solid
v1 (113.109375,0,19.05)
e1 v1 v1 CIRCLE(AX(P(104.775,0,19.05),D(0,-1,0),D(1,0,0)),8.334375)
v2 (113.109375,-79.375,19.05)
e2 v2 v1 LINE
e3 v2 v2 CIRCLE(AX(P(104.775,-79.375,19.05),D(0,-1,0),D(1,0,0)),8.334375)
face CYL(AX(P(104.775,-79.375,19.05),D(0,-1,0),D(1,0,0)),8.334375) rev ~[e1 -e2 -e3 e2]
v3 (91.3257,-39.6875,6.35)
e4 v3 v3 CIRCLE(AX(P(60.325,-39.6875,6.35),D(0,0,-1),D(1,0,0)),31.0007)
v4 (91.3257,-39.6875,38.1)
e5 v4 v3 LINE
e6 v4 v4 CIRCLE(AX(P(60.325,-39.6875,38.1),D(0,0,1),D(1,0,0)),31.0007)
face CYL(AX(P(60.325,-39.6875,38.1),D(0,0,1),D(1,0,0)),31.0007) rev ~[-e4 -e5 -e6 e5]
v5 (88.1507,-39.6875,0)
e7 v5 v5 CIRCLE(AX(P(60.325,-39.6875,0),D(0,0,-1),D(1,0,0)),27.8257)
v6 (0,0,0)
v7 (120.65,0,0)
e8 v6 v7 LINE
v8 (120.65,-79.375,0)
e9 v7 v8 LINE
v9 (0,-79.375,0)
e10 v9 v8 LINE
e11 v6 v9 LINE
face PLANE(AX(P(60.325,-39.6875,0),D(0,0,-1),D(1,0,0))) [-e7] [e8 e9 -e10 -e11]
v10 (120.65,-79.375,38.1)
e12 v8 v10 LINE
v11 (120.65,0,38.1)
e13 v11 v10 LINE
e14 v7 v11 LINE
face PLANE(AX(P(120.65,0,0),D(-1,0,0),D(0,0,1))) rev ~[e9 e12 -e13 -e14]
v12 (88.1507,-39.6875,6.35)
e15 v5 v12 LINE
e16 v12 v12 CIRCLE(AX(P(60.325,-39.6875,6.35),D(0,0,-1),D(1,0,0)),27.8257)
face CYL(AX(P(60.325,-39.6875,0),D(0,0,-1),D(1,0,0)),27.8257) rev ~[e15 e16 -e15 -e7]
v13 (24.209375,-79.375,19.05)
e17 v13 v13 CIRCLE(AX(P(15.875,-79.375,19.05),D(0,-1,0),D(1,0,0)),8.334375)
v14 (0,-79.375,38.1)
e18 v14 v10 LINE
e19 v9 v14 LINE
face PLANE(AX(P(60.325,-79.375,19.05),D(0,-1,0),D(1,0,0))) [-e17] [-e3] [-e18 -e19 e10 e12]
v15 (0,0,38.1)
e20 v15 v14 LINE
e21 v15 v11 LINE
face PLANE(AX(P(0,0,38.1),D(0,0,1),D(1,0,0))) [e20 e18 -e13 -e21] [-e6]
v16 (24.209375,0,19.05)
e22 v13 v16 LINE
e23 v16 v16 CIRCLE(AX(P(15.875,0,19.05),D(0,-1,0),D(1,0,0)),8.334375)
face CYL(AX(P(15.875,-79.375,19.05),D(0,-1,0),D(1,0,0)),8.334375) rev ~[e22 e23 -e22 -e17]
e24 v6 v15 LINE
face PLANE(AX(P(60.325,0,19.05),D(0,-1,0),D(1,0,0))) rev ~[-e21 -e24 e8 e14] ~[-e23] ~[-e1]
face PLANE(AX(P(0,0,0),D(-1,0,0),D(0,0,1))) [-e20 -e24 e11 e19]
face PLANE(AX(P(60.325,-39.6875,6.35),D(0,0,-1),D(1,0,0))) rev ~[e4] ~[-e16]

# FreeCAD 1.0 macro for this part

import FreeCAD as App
import Part
import Sketcher
from FreeCAD import Vector
Q = App.Units.Quantity

doc = App.newDocument("Part")
body = doc.addObject("PartDesign::Body", "Body")

sketch1 = body.newObject("Sketcher::SketchObject", "Sketch")
sketch1.AttachmentSupport = (doc.getObject("XZ_Plane"), [""])
sketch1.MapMode = "FlatFace"
sketch1.addGeometry(Part.LineSegment(Vector(0, 38, 0), Vector(0, 0, 0)), False)
sketch1.addGeometry(Part.LineSegment(Vector(0, 0, 0), Vector(121, 0, 0)), False)
sketch1.addGeometry(Part.LineSegment(Vector(121, 0, 0), Vector(121, 38, 0)), False)
sketch1.addGeometry(Part.LineSegment(Vector(121, 38, 0), Vector(0, 38, 0)), False)
sketch1.addConstraint(Sketcher.Constraint("Coincident", 0, 2, 1, 1))
sketch1.addConstraint(Sketcher.Constraint("Coincident", 1, 2, 2, 1))
sketch1.addConstraint(Sketcher.Constraint("Coincident", 2, 2, 3, 1))
sketch1.addConstraint(Sketcher.Constraint("Coincident", 3, 2, 0, 1))
sketch1.addConstraint(Sketcher.Constraint("Vertical", 0))
sketch1.addConstraint(Sketcher.Constraint("Horizontal", 1))
sketch1.addConstraint(Sketcher.Constraint("Vertical", 2))
sketch1.addConstraint(Sketcher.Constraint("Horizontal", 3))
sketch1.addConstraint(Sketcher.Constraint("Coincident", 0, 2, -1, 1))
sketch1.addConstraint(Sketcher.Constraint("DistanceY", 0, 2, 0, 1, Q("1.5 in")))
sketch1.addConstraint(Sketcher.Constraint("DistanceX", 1, 1, 1, 2, Q("4.75 in")))
pad1 = body.newObject("PartDesign::Pad", "Pad")
pad1.Profile = sketch1
pad1.Length = Q("3.125 in")

sketch2 = body.newObject("Sketcher::SketchObject", "Sketch001")
sketch2.AttachmentSupport = (doc.getObject("XY_Plane"), [""])
sketch2.MapMode = "FlatFace"
sketch2.AttachmentOffset = App.Placement(Vector(0, 0, 1.5 * 25.4), App.Rotation())
sketch2.addGeometry(Part.Circle(Vector(60, -40, 0), Vector(0, 0, 1), 31), False)
sketch2.addConstraint(Sketcher.Constraint("Diameter", 0, Q("2.441 in")))
sketch2.addConstraint(Sketcher.Constraint("DistanceX", -1, 1, 0, 3, Q("2.375 in")))
sketch2.addConstraint(Sketcher.Constraint("DistanceY", 0, 3, -1, 1, Q("1.5625 in")))
pocket1 = body.newObject("PartDesign::Pocket", "Pocket")
pocket1.Profile = sketch2
pocket1.Type = "ThroughAll"

sketch3 = body.newObject("Sketcher::SketchObject", "Sketch002")
sketch3.AttachmentSupport = (doc.getObject("XY_Plane"), [""])
sketch3.MapMode = "FlatFace"
sketch3.addGeometry(Part.Circle(Vector(60, -40, 0), Vector(0, 0, 1), 31), False)
sketch3.addGeometry(Part.Circle(Vector(60, -40, 0), Vector(0, 0, 1), 28), False)
sketch3.addConstraint(Sketcher.Constraint("Coincident", 1, 3, 0, 3))
sketch3.addConstraint(Sketcher.Constraint("Diameter", 0, Q("2.441 in")))
sketch3.addConstraint(Sketcher.Constraint("Diameter", 1, Q("2.191 in")))
sketch3.addConstraint(Sketcher.Constraint("DistanceX", -1, 1, 0, 3, Q("2.375 in")))
sketch3.addConstraint(Sketcher.Constraint("DistanceY", 0, 3, -1, 1, Q("1.5625 in")))
pad2 = body.newObject("PartDesign::Pad", "Pad001")
pad2.Profile = sketch3
pad2.Length = Q("0.25 in")

sketch4 = body.newObject("Sketcher::SketchObject", "Sketch003")
sketch4.AttachmentSupport = (doc.getObject("XZ_Plane"), [""])
sketch4.MapMode = "FlatFace"
sketch4.AttachmentOffset = App.Placement(Vector(0, 0, 3.125 * 25.4), App.Rotation())
sketch4.addGeometry(Part.Circle(Vector(16, 19, 0), Vector(0, 0, 1), 8), False)
sketch4.addGeometry(Part.Circle(Vector(105, 19, 0), Vector(0, 0, 1), 8), False)
sketch4.addConstraint(Sketcher.Constraint("Equal", 0, 1))
sketch4.addConstraint(Sketcher.Constraint("Horizontal", 0, 3, 1, 3))
sketch4.addConstraint(Sketcher.Constraint("Diameter", 0, Q("0.65625 in")))
sketch4.addConstraint(Sketcher.Constraint("DistanceX", 0, 3, 1, 3, Q("3.5 in")))
sketch4.addConstraint(Sketcher.Constraint("DistanceY", -1, 1, 0, 3, Q("0.75 in")))
sketch4.addConstraint(Sketcher.Constraint("DistanceX", -1, 1, 0, 3, Q("0.625 in")))
pocket2 = body.newObject("PartDesign::Pocket", "Pocket001")
pocket2.Profile = sketch4
pocket2.Type = "ThroughAll"

doc.recompute()
